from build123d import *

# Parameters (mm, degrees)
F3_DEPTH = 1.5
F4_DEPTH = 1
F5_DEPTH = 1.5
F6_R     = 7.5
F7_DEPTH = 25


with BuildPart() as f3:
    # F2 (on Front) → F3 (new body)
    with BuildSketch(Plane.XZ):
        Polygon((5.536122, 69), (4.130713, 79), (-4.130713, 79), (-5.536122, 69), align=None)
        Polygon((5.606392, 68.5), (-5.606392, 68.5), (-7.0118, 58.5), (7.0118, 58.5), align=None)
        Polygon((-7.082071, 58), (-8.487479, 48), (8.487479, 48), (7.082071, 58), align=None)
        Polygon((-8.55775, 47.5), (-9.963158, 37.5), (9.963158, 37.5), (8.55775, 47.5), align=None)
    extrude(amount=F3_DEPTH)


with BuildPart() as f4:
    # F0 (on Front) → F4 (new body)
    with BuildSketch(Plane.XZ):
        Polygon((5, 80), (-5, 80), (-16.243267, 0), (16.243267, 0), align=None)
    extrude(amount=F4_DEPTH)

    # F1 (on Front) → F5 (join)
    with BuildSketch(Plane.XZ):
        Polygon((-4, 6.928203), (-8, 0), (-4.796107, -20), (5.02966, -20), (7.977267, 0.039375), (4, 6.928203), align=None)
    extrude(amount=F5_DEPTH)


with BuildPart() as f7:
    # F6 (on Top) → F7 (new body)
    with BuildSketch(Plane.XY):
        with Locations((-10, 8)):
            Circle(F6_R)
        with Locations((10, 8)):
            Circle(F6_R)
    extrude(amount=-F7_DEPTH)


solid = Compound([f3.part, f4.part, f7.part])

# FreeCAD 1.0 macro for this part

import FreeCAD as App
import Part
import Sketcher
from FreeCAD import Vector
Q = App.Units.Quantity


def add_polygon(sketch, points):
    """Adds a closed chain of lines whose ends are joined by coincident constraints."""
    first, n = sketch.GeometryCount, len(points)
    for a, b in zip(points, points[1:] + points[:1]):
        sketch.addGeometry(Part.LineSegment(App.Vector(*a, 0), App.Vector(*b, 0)), False)
    for i in range(n):
        sketch.addConstraint(Sketcher.Constraint("Coincident", first + i, 2, first + (i + 1) % n, 1))

doc = App.newDocument("Part")
params = doc.addObject("Spreadsheet::Sheet", "Params")
for row, (alias, value) in enumerate([
    ("pad1_length", "1.5 mm"),
    ("sketch2_width", "10 mm"),
    ("pad2_length", "1 mm"),
    ("sketch3_width", "8 mm"),
    ("sketch3_length", "8 mm"),
    ("pad3_length", "1.5 mm"),
    ("sketch4_diameter", "15 mm"),
    ("pad4_length", "25 mm"),
], start=1):
    params.set(f"A{row}", alias)
    params.set(f"B{row}", "=" + value)
    params.setAlias(f"B{row}", alias)

body = doc.addObject("PartDesign::Body", "Body")
body.AllowCompound = True

# Sketch on XZ plane
sketch1 = body.newObject("Sketcher::SketchObject", "Sketch")
sketch1.AttachmentSupport = (doc.getObject("XZ_Plane"), [""])
sketch1.MapMode = "FlatFace"
add_polygon(sketch1, [(6, 69), (4, 79), (-4, 79), (-6, 69)])  # lines 0-3
add_polygon(sketch1, [(6, 68), (-6, 68), (-7, 58), (7, 58)])  # lines 4-7
add_polygon(sketch1, [(-7, 58), (-8, 48), (8, 48), (7, 58)])  # lines 8-11
add_polygon(sketch1, [(-9, 48), (-10, 38), (10, 38), (9, 48)])  # lines 12-15
sketch1.addConstraint([
    Sketcher.Constraint("Horizontal", 1),
    Sketcher.Constraint("Horizontal", 3),
    Sketcher.Constraint("Horizontal", 4),
    Sketcher.Constraint("Horizontal", 6),
    Sketcher.Constraint("Horizontal", 9),
    Sketcher.Constraint("Horizontal", 11),
    Sketcher.Constraint("Horizontal", 13),
    Sketcher.Constraint("Horizontal", 15),
    Sketcher.Constraint("Parallel", 2, 5),
    Sketcher.Constraint("Parallel", 0, 7),
    Sketcher.Constraint("Parallel", 5, 8),
    Sketcher.Constraint("Parallel", 7, 10),
    Sketcher.Constraint("Parallel", 8, 12),
    Sketcher.Constraint("Parallel", 10, 14),
    Sketcher.Constraint("Equal", 0, 2),
    Sketcher.Constraint("Equal", 2, 5),
    Sketcher.Constraint("Equal", 7, 8),
    Sketcher.Constraint("Equal", 10, 12),
    Sketcher.Constraint("Angle", 0, Q("98.000004 deg")),
    Sketcher.Constraint("DistanceY", -1, 1, 0, 2, Q("79 mm")),
    Sketcher.Constraint("DistanceY", -1, 1, 2, 2, Q("69 mm")),
    Sketcher.Constraint("DistanceY", -1, 1, 8, 2, Q("48 mm")),
    Sketcher.Constraint("DistanceY", 12, 2, 5, 2, Q("21 mm")),
    Sketcher.Constraint("DistanceY", -1, 1, 4, 2, Q("68.5 mm")),
    Sketcher.Constraint("DistanceX", 6, 1, 6, 2, Q("14.0236 mm")),
    Sketcher.Constraint("DistanceX", 15, 2, 15, 1, Q("17.1155 mm")),
    Sketcher.Constraint("DistanceX", 9, 1, 9, 2, Q("16.974958 mm")),
    Sketcher.Constraint("DistanceX", 5, 2, -1, 1, Q("7.0118 mm")),
    Sketcher.Constraint("DistanceX", 1, 2, 1, 1, Q("8.261426 mm")),
    Sketcher.Constraint("DistanceX", 2, 2, -1, 1, Q("5.536122 mm")),
    Sketcher.Constraint("DistanceX", 8, 2, -1, 1, Q("8.487479 mm")),
    Sketcher.Constraint("DistanceX", -1, 1, 14, 2, Q("8.55775 mm")),
])
pad1 = body.newObject("PartDesign::Pad", "Pad")
pad1.Profile = sketch1
pad1.setExpression("Length", "Params.pad1_length")
body2 = doc.addObject("PartDesign::Body", "Body001")

# Sketch on XZ plane
sketch2 = body2.newObject("Sketcher::SketchObject", "Sketch001")
sketch2.AttachmentSupport = (doc.getObject("XZ_Plane001"), [""])
sketch2.MapMode = "FlatFace"
add_polygon(sketch2, [(5, 80), (-5, 80), (-16, 0), (16, 0)])  # lines 0-3
sketch2.addConstraint([
    Sketcher.Constraint("Horizontal", 0),
    Sketcher.Constraint("Horizontal", 2),
    Sketcher.Constraint("Symmetric", 1, 2, 2, 2, -1, 1),
    Sketcher.Constraint("Equal", 1, 3),
    Sketcher.Constraint("DistanceX", 0, 2, 0, 1, Q("10 mm")),
    Sketcher.Constraint("Angle", 1, Q("-98 deg")),
    Sketcher.Constraint("DistanceY", -1, 1, 0, 2, Q("80 mm")),
])
sketch2.setExpression("Constraints[8]", "Params.sketch2_width")
pad2 = body2.newObject("PartDesign::Pad", "Pad001")
pad2.Profile = sketch2
pad2.setExpression("Length", "Params.pad2_length")

# Sketch on XZ plane
sketch3 = body2.newObject("Sketcher::SketchObject", "Sketch002")
sketch3.AttachmentSupport = (doc.getObject("XZ_Plane001"), [""])
sketch3.MapMode = "FlatFace"
add_polygon(sketch3, [(-4, 7), (-8, 0), (-5, -20), (5, -20), (8, 0), (4, 7)])  # lines 0-5
sketch3.addConstraint([
    Sketcher.Constraint("Horizontal", 2),
    Sketcher.Constraint("Horizontal", 5),
    Sketcher.Constraint("PointOnObject", 0, 2, -1),
    Sketcher.Constraint("Equal", 1, 3),
    Sketcher.Constraint("DistanceX", 5, 2, 5, 1, Q("8 mm")),
    Sketcher.Constraint("Angle", 0, Q("-120.000001 deg")),
    Sketcher.Constraint("Angle", 4, Q("120.000002 deg")),
    Sketcher.Constraint("Distance", 0, Q("8 mm")),
    Sketcher.Constraint("DistanceX", 0, 2, -1, 1, Q("8 mm")),
    Sketcher.Constraint("DistanceY", 1, 2, -1, 1, Q("20 mm")),
    Sketcher.Constraint("DistanceX", 2, 1, 2, 2, Q("9.825767 mm")),
    Sketcher.Constraint("DistanceX", -1, 1, 2, 2, Q("5.02966 mm")),
])
sketch3.setExpression("Constraints[10]", "Params.sketch3_width")
sketch3.setExpression("Constraints[13]", "Params.sketch3_length")
pad3 = body2.newObject("PartDesign::Pad", "Pad002")
pad3.Profile = sketch3
pad3.setExpression("Length", "Params.pad3_length")
body3 = doc.addObject("PartDesign::Body", "Body002")
body3.AllowCompound = True

# Sketch on XY plane
sketch4 = body3.newObject("Sketcher::SketchObject", "Sketch003")
sketch4.AttachmentSupport = (doc.getObject("XY_Plane002"), [""])
sketch4.MapMode = "FlatFace"
sketch4.addGeometry([
    Part.Circle(Vector(-10, 8, 0), Vector(0, 0, 1), 8),
    Part.Circle(Vector(10, 8, 0), Vector(0, 0, 1), 8),
], False)
sketch4.addConstraint([
    Sketcher.Constraint("Equal", 0, 1),
    Sketcher.Constraint("Symmetric", 0, 3, 1, 3, -2),
    Sketcher.Constraint("Diameter", 0, Q("15 mm")),
    Sketcher.Constraint("DistanceX", 0, 3, -1, 1, Q("10 mm")),
    Sketcher.Constraint("DistanceY", -1, 1, 0, 3, Q("8 mm")),
])
sketch4.setExpression("Constraints[2]", "Params.sketch4_diameter")
pad4 = body3.newObject("PartDesign::Pad", "Pad003")
pad4.Profile = sketch4
pad4.setExpression("Length", "Params.pad4_length")
pad4.Reversed = True

doc.recompute()
